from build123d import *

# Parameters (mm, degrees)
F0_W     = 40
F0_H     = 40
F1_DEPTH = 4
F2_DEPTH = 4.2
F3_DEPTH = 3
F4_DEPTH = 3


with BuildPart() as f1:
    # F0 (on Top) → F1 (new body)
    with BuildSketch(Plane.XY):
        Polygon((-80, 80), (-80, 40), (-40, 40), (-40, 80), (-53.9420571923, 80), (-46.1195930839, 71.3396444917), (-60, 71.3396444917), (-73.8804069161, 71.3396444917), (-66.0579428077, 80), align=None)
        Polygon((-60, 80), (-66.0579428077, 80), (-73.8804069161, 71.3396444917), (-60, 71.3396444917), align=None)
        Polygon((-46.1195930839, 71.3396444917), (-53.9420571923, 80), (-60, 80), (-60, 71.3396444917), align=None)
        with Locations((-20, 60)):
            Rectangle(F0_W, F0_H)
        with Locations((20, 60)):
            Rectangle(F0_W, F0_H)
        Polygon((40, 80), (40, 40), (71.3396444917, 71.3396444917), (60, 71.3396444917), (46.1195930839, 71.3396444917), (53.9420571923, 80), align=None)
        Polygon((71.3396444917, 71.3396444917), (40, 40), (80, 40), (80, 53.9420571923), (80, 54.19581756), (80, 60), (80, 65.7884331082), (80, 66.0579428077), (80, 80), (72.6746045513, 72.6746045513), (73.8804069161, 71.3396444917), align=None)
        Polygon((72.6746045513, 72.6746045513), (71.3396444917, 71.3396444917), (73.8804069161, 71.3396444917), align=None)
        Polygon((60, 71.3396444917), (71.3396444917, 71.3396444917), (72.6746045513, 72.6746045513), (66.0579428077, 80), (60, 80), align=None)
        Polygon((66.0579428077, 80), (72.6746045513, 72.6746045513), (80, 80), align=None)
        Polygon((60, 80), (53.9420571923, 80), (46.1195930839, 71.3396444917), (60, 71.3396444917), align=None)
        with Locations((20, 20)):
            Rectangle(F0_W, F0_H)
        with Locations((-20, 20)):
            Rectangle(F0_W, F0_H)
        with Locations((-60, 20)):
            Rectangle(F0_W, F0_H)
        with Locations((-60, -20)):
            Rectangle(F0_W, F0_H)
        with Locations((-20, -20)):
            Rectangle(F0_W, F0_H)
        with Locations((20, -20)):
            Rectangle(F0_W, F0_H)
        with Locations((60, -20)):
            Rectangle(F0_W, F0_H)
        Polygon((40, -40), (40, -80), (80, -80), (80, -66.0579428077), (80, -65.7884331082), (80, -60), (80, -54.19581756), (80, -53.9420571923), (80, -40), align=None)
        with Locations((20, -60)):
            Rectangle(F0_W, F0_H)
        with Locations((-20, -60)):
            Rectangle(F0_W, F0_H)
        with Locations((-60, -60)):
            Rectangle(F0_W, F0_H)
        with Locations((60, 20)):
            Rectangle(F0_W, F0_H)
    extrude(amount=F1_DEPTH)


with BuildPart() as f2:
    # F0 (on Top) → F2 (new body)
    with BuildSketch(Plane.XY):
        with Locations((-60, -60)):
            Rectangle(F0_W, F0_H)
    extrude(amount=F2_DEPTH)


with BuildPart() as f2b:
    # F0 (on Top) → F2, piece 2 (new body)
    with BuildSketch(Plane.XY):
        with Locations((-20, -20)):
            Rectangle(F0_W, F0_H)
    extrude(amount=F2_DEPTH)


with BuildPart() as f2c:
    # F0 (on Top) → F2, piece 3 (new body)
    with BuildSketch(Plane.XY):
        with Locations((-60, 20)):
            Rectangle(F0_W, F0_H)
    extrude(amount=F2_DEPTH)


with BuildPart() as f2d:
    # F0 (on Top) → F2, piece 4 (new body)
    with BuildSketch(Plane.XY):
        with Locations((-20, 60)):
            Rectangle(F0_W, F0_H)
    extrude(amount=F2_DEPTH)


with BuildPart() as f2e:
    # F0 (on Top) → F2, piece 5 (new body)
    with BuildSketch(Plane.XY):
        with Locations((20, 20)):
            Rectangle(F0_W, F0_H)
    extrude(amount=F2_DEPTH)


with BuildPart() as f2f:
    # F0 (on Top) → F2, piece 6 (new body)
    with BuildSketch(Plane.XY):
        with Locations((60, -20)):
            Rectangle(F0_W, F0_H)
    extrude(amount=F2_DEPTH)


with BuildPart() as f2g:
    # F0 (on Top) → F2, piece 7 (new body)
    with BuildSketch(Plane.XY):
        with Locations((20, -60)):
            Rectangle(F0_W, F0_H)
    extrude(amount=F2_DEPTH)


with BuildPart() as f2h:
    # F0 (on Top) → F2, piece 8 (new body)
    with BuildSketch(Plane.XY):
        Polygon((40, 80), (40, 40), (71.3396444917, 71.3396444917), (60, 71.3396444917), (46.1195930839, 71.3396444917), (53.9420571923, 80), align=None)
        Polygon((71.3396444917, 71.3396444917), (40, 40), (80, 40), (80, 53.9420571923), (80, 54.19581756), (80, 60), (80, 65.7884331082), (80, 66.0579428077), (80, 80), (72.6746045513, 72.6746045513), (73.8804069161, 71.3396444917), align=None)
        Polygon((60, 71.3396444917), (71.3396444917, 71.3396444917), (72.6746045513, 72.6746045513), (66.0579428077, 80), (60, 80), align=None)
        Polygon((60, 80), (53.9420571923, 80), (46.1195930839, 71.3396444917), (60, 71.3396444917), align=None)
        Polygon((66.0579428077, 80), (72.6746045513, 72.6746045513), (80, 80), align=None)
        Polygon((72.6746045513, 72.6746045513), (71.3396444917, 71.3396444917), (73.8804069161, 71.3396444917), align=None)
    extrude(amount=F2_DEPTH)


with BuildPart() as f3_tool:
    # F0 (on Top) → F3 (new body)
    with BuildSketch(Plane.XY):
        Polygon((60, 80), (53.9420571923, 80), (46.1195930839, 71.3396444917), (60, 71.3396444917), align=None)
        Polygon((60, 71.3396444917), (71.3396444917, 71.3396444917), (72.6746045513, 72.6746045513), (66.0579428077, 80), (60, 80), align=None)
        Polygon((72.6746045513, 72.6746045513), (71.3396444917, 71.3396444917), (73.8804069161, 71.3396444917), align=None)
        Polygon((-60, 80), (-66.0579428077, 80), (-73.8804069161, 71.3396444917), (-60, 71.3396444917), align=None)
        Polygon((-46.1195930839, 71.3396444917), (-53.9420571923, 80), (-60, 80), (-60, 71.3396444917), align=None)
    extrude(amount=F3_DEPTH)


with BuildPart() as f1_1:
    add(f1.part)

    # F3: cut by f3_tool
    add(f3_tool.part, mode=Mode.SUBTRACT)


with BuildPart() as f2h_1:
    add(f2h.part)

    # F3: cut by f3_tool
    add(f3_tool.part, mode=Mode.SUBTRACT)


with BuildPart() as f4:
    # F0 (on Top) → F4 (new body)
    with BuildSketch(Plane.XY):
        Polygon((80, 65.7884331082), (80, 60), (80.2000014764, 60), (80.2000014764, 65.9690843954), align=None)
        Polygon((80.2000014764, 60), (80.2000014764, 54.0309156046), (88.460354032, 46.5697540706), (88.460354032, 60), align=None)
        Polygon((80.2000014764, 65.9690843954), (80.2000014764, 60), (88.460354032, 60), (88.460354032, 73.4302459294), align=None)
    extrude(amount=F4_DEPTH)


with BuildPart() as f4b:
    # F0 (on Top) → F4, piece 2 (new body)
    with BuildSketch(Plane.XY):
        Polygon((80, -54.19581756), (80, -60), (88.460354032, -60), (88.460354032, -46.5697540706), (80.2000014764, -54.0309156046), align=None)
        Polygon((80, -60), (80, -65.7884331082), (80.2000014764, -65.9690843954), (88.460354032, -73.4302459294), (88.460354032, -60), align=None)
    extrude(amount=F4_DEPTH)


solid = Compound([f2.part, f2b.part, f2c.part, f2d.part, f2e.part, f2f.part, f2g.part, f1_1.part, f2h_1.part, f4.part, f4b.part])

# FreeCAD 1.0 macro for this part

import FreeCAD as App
import Part
import Sketcher
from FreeCAD import Vector


def add_polygon(sketch, points):
    """Adds a closed chain of lines whose ends are joined by coincident constraints."""
    first, n = sketch.GeometryCount, len(points)
    for a, b in zip(points, points[1:] + points[:1]):
        sketch.addGeometry(Part.LineSegment(App.Vector(*a, 0), App.Vector(*b, 0)), False)
    for i in range(n):
        sketch.addConstraint(Sketcher.Constraint("Coincident", first + i, 2, first + (i + 1) % n, 1))

doc = App.newDocument("Part")
body = doc.addObject("PartDesign::Body", "Body")

# Sketch on XY plane
sketch1 = body.newObject("Sketcher::SketchObject", "Sketch")
sketch1.AttachmentSupport = (doc.getObject("XY_Plane"), [""])
sketch1.MapMode = "FlatFace"
add_polygon(sketch1, [(-80, 80), (-80, -80), (80, -80), (80, 80)])  # lines 0-3
sketch1.addConstraint(Sketcher.Constraint("Vertical", 0))
sketch1.addConstraint(Sketcher.Constraint("Horizontal", 1))
sketch1.addConstraint(Sketcher.Constraint("Vertical", 2))
sketch1.addConstraint(Sketcher.Constraint("Horizontal", 3))
sketch1.addConstraint(Sketcher.Constraint("Symmetric", 0, 2, 2, 2, -1, 1))
sketch1.addConstraint(Sketcher.Constraint("Equal", 3, 0))
sketch1.addConstraint(Sketcher.Constraint("DistanceX", 1, 1, 1, 2, 160.0))
pad1 = body.newObject("PartDesign::Pad", "Pad")
pad1.Profile = sketch1
pad1.Length = 4
body2 = doc.addObject("PartDesign::Body", "Body001")

# Sketch on XY plane
sketch2 = body2.newObject("Sketcher::SketchObject", "Sketch001")
sketch2.AttachmentSupport = (doc.getObject("XY_Plane001"), [""])
sketch2.MapMode = "FlatFace"
add_polygon(sketch2, [(-80, -40), (-80, -80), (-40, -80), (-40, -40)])  # lines 0-3
sketch2.addConstraint(Sketcher.Constraint("Vertical", 0))
sketch2.addConstraint(Sketcher.Constraint("Horizontal", 1))
sketch2.addConstraint(Sketcher.Constraint("Vertical", 2))
sketch2.addConstraint(Sketcher.Constraint("Horizontal", 3))
sketch2.addConstraint(Sketcher.Constraint("Equal", 3, 0))
sketch2.addConstraint(Sketcher.Constraint("DistanceX", 1, 1, 1, 2, 40.0))
sketch2.addConstraint(Sketcher.Constraint("DistanceX", 0, 2, -1, 1, 80.0))
sketch2.addConstraint(Sketcher.Constraint("DistanceY", 0, 2, -1, 1, 80.0))
pad2 = body2.newObject("PartDesign::Pad", "Pad001")
pad2.Profile = sketch2
pad2.Length = 4.2
body3 = doc.addObject("PartDesign::Body", "Body002")

# Sketch on XY plane
sketch3 = body3.newObject("Sketcher::SketchObject", "Sketch002")
sketch3.AttachmentSupport = (doc.getObject("XY_Plane002"), [""])
sketch3.MapMode = "FlatFace"
add_polygon(sketch3, [(-40, 0), (-40, -40), (0, -40), (0, 0)])  # lines 0-3
sketch3.addConstraint(Sketcher.Constraint("Vertical", 0))
sketch3.addConstraint(Sketcher.Constraint("Horizontal", 1))
sketch3.addConstraint(Sketcher.Constraint("Vertical", 2))
sketch3.addConstraint(Sketcher.Constraint("Horizontal", 3))
sketch3.addConstraint(Sketcher.Constraint("Coincident", 2, 2, -1, 1))
sketch3.addConstraint(Sketcher.Constraint("Equal", 3, 0))
sketch3.addConstraint(Sketcher.Constraint("DistanceX", 1, 1, 1, 2, 40.0))
pad3 = body3.newObject("PartDesign::Pad", "Pad002")
pad3.Profile = sketch3
pad3.Length = 4.2
body4 = doc.addObject("PartDesign::Body", "Body003")

# Sketch on XY plane
sketch4 = body4.newObject("Sketcher::SketchObject", "Sketch003")
sketch4.AttachmentSupport = (doc.getObject("XY_Plane003"), [""])
sketch4.MapMode = "FlatFace"
add_polygon(sketch4, [(-80, 40), (-80, 0), (-40, 0), (-40, 40)])  # lines 0-3
sketch4.addConstraint(Sketcher.Constraint("Vertical", 0))
sketch4.addConstraint(Sketcher.Constraint("Horizontal", 1))
sketch4.addConstraint(Sketcher.Constraint("Vertical", 2))
sketch4.addConstraint(Sketcher.Constraint("Horizontal", 3))
sketch4.addConstraint(Sketcher.Constraint("PointOnObject", 0, 2, -1))
sketch4.addConstraint(Sketcher.Constraint("Equal", 3, 0))
sketch4.addConstraint(Sketcher.Constraint("DistanceX", 1, 1, 1, 2, 40.0))
sketch4.addConstraint(Sketcher.Constraint("DistanceX", 0, 2, -1, 1, 80.0))
pad4 = body4.newObject("PartDesign::Pad", "Pad003")
pad4.Profile = sketch4
pad4.Length = 4.2
body5 = doc.addObject("PartDesign::Body", "Body004")

# Sketch on XY plane
sketch5 = body5.newObject("Sketcher::SketchObject", "Sketch004")
sketch5.AttachmentSupport = (doc.getObject("XY_Plane004"), [""])
sketch5.MapMode = "FlatFace"
add_polygon(sketch5, [(-40, 80), (-40, 40), (0, 40), (0, 80)])  # lines 0-3
sketch5.addConstraint(Sketcher.Constraint("Vertical", 0))
sketch5.addConstraint(Sketcher.Constraint("Horizontal", 1))
sketch5.addConstraint(Sketcher.Constraint("Vertical", 2))
sketch5.addConstraint(Sketcher.Constraint("Horizontal", 3))
sketch5.addConstraint(Sketcher.Constraint("PointOnObject", 1, 2, -2))
sketch5.addConstraint(Sketcher.Constraint("Equal", 3, 0))
sketch5.addConstraint(Sketcher.Constraint("DistanceX", 1, 1, 1, 2, 40.0))
sketch5.addConstraint(Sketcher.Constraint("DistanceY", -1, 1, 0, 2, 40.0))
pad5 = body5.newObject("PartDesign::Pad", "Pad004")
pad5.Profile = sketch5
pad5.Length = 4.2
body6 = doc.addObject("PartDesign::Body", "Body005")

# Sketch on XY plane
sketch6 = body6.newObject("Sketcher::SketchObject", "Sketch005")
sketch6.AttachmentSupport = (doc.getObject("XY_Plane005"), [""])
sketch6.MapMode = "FlatFace"
add_polygon(sketch6, [(0, 40), (0, 0), (40, 0), (40, 40)])  # lines 0-3
sketch6.addConstraint(Sketcher.Constraint("Vertical", 0))
sketch6.addConstraint(Sketcher.Constraint("Horizontal", 1))
sketch6.addConstraint(Sketcher.Constraint("Vertical", 2))
sketch6.addConstraint(Sketcher.Constraint("Horizontal", 3))
sketch6.addConstraint(Sketcher.Constraint("Coincident", 0, 2, -1, 1))
sketch6.addConstraint(Sketcher.Constraint("Equal", 3, 0))
sketch6.addConstraint(Sketcher.Constraint("DistanceX", 1, 1, 1, 2, 40.0))
pad6 = body6.newObject("PartDesign::Pad", "Pad005")
pad6.Profile = sketch6
pad6.Length = 4.2
body7 = doc.addObject("PartDesign::Body", "Body006")

# Sketch on XY plane
sketch7 = body7.newObject("Sketcher::SketchObject", "Sketch006")
sketch7.AttachmentSupport = (doc.getObject("XY_Plane006"), [""])
sketch7.MapMode = "FlatFace"
add_polygon(sketch7, [(40, 0), (40, -40), (80, -40), (80, 0)])  # lines 0-3
sketch7.addConstraint(Sketcher.Constraint("Vertical", 0))
sketch7.addConstraint(Sketcher.Constraint("Horizontal", 1))
sketch7.addConstraint(Sketcher.Constraint("Vertical", 2))
sketch7.addConstraint(Sketcher.Constraint("Horizontal", 3))
sketch7.addConstraint(Sketcher.Constraint("PointOnObject", 2, 2, -1))
sketch7.addConstraint(Sketcher.Constraint("Equal", 3, 0))
sketch7.addConstraint(Sketcher.Constraint("DistanceX", 1, 1, 1, 2, 40.0))
sketch7.addConstraint(Sketcher.Constraint("DistanceX", -1, 1, 0, 2, 40.0))
pad7 = body7.newObject("PartDesign::Pad", "Pad006")
pad7.Profile = sketch7
pad7.Length = 4.2
body8 = doc.addObject("PartDesign::Body", "Body007")

# Sketch on XY plane
sketch8 = body8.newObject("Sketcher::SketchObject", "Sketch007")
sketch8.AttachmentSupport = (doc.getObject("XY_Plane007"), [""])
sketch8.MapMode = "FlatFace"
add_polygon(sketch8, [(0, -40), (0, -80), (40, -80), (40, -40)])  # lines 0-3
sketch8.addConstraint(Sketcher.Constraint("Vertical", 0))
sketch8.addConstraint(Sketcher.Constraint("Horizontal", 1))
sketch8.addConstraint(Sketcher.Constraint("Vertical", 2))
sketch8.addConstraint(Sketcher.Constraint("Horizontal", 3))
sketch8.addConstraint(Sketcher.Constraint("PointOnObject", 0, 2, -2))
sketch8.addConstraint(Sketcher.Constraint("Equal", 3, 0))
sketch8.addConstraint(Sketcher.Constraint("DistanceX", 1, 1, 1, 2, 40.0))
sketch8.addConstraint(Sketcher.Constraint("DistanceY", 0, 2, -1, 1, 80.0))
pad8 = body8.newObject("PartDesign::Pad", "Pad007")
pad8.Profile = sketch8
pad8.Length = 4.2
body9 = doc.addObject("PartDesign::Body", "Body008")

# Sketch on XY plane
sketch9 = body9.newObject("Sketcher::SketchObject", "Sketch008")
sketch9.AttachmentSupport = (doc.getObject("XY_Plane008"), [""])
sketch9.MapMode = "FlatFace"
add_polygon(sketch9, [(80, 40), (80, 80), (40, 80), (40, 40)])  # lines 0-3
sketch9.addConstraint(Sketcher.Constraint("Vertical", 0))
sketch9.addConstraint(Sketcher.Constraint("Horizontal", 1))
sketch9.addConstraint(Sketcher.Constraint("Vertical", 2))
sketch9.addConstraint(Sketcher.Constraint("Horizontal", 3))
sketch9.addConstraint(Sketcher.Constraint("Equal", 3, 0))
sketch9.addConstraint(Sketcher.Constraint("DistanceX", 1, 2, 1, 1, 40.0))
sketch9.addConstraint(Sketcher.Constraint("DistanceX", -1, 1, 0, 2, 80.0))
sketch9.addConstraint(Sketcher.Constraint("DistanceY", -1, 1, 0, 2, 80.0))
pad9 = body9.newObject("PartDesign::Pad", "Pad008")
pad9.Profile = sketch9
pad9.Length = 4.2
body10 = doc.addObject("PartDesign::Body", "Body009")
body10.AllowCompound = True

# Sketch on XY plane
sketch10 = body10.newObject("Sketcher::SketchObject", "Sketch009")
sketch10.AttachmentSupport = (doc.getObject("XY_Plane009"), [""])
sketch10.MapMode = "FlatFace"
add_polygon(sketch10, [(53.942057, 80), (46.119593, 71.339644), (73.880407, 71.339644), (72.674605, 72.674605), (66.057943, 80)])  # lines 0-4
add_polygon(sketch10, [(-66.057943, 80), (-73.880407, 71.339644), (-46.119593, 71.339644), (-53.942057, 80)])  # lines 5-8
sketch10.addConstraint(Sketcher.Constraint("Horizontal", 1))
sketch10.addConstraint(Sketcher.Constraint("Horizontal", 4))
sketch10.addConstraint(Sketcher.Constraint("Horizontal", 6))
sketch10.addConstraint(Sketcher.Constraint("Horizontal", 8))
sketch10.addConstraint(Sketcher.Constraint("Symmetric", 1, 2, 5, 2, -2))
sketch10.addConstraint(Sketcher.Constraint("Symmetric", 4, 2, 7, 2, -2))
sketch10.addConstraint(Sketcher.Constraint("Parallel", 2, 3))
sketch10.addConstraint(Sketcher.Constraint("Parallel", 0, 5))
sketch10.addConstraint(Sketcher.Constraint("Parallel", 3, 7))
sketch10.addConstraint(Sketcher.Constraint("Equal", 1, 6))
sketch10.addConstraint(Sketcher.Constraint("DistanceY", -1, 1, 3, 2, 80.0))
sketch10.addConstraint(Sketcher.Constraint("DistanceX", 5, 2, 0, 2, 120.0))
sketch10.addConstraint(Sketcher.Constraint("Distance", 2, 1.79891))
sketch10.addConstraint(Sketcher.Constraint("DistanceX", 1, 1, 1, 2, 27.760814))
sketch10.addConstraint(Sketcher.Constraint("DistanceX", 4, 2, 4, 1, 12.115886))
sketch10.addConstraint(Sketcher.Constraint("DistanceY", 1, 2, 2, 2, 1.33496))
pad10 = body10.newObject("PartDesign::Pad", "Pad009")
pad10.Profile = sketch10
pad10.Length = 3
doc.recompute()

body11 = doc.addObject("PartDesign::Body", "Body010")
body11.BaseFeature = body10
boolean = body.newObject("PartDesign::Boolean", "Boolean")
boolean.Type = "Cut"
boolean.addObjects([body11])
doc.recompute()

boolean2 = body9.newObject("PartDesign::Boolean", "Boolean001")
boolean2.Type = "Cut"
boolean2.addObjects([body10])
body12 = doc.addObject("PartDesign::Body", "Body011")

# Sketch on XY plane
sketch11 = body12.newObject("Sketcher::SketchObject", "Sketch010")
sketch11.AttachmentSupport = (doc.getObject("XY_Plane011"), [""])
sketch11.MapMode = "FlatFace"
add_polygon(sketch11, [(80, 65.788433), (80, 60), (80.200001, 60), (80.200001, 54.030916), (88.460354, 46.569754), (88.460354, 73.430246), (80.200001, 65.969084)])  # lines 0-6
sketch11.addConstraint(Sketcher.Constraint("Vertical", 0))
sketch11.addConstraint(Sketcher.Constraint("Horizontal", 1))
sketch11.addConstraint(Sketcher.Constraint("Vertical", 2))
sketch11.addConstraint(Sketcher.Constraint("Vertical", 4))
sketch11.addConstraint(Sketcher.Constraint("DistanceX", 1, 1, 1, 2, 0.200001))
sketch11.addConstraint(Sketcher.Constraint("DistanceX", -1, 1, 0, 2, 80.0))
sketch11.addConstraint(Sketcher.Constraint("DistanceY", -1, 1, 0, 2, 60.0))
sketch11.addConstraint(Sketcher.Constraint("DistanceX", -1, 1, 5, 2, 80.200001))
sketch11.addConstraint(Sketcher.Constraint("DistanceY", 4, 1, 4, 2, 26.860492))
sketch11.addConstraint(Sketcher.Constraint("Distance", 6, 0.26951))
sketch11.addConstraint(Sketcher.Constraint("DistanceY", 0, 2, 0, 1, 5.788433))
sketch11.addConstraint(Sketcher.Constraint("DistanceY", 2, 2, 2, 1, 5.969084))
sketch11.addConstraint(Sketcher.Constraint("DistanceY", 3, 2, 2, 2, 7.461162))
sketch11.addConstraint(Sketcher.Constraint("Distance", 3, 11.131144))
pad11 = body12.newObject("PartDesign::Pad", "Pad010")
pad11.Profile = sketch11
pad11.Length = 3
body13 = doc.addObject("PartDesign::Body", "Body012")

# Sketch on XY plane
sketch12 = body13.newObject("Sketcher::SketchObject", "Sketch011")
sketch12.AttachmentSupport = (doc.getObject("XY_Plane012"), [""])
sketch12.MapMode = "FlatFace"
add_polygon(sketch12, [(80, -54.195818), (80, -65.788433), (80.200001, -65.969084), (88.460354, -73.430246), (88.460354, -46.569754), (80.200001, -54.030916)])  # lines 0-5
sketch12.addConstraint(Sketcher.Constraint("Vertical", 0))
sketch12.addConstraint(Sketcher.Constraint("Vertical", 3))
sketch12.addConstraint(Sketcher.Constraint("DistanceX", -1, 1, 0, 2, 80.0))
sketch12.addConstraint(Sketcher.Constraint("DistanceX", -1, 1, 1, 2, 80.200001))
sketch12.addConstraint(Sketcher.Constraint("DistanceX", -1, 1, 4, 2, 80.200001))
sketch12.addConstraint(Sketcher.Constraint("DistanceY", 3, 1, 3, 2, 26.860492))
sketch12.addConstraint(Sketcher.Constraint("DistanceY", 5, 2, 4, 2, 0.164902))
sketch12.addConstraint(Sketcher.Constraint("Distance", 1, 0.26951))
sketch12.addConstraint(Sketcher.Constraint("DistanceY", 0, 2, 0, 1, 11.592616))
sketch12.addConstraint(Sketcher.Constraint("DistanceY", 2, 2, 1, 2, 7.461162))
sketch12.addConstraint(Sketcher.Constraint("Distance", 2, 11.131144))
sketch12.addConstraint(Sketcher.Constraint("DistanceY", 0, 2, -1, 1, 65.788433))
pad12 = body13.newObject("PartDesign::Pad", "Pad011")
pad12.Profile = sketch12
pad12.Length = 3

doc.recompute()
